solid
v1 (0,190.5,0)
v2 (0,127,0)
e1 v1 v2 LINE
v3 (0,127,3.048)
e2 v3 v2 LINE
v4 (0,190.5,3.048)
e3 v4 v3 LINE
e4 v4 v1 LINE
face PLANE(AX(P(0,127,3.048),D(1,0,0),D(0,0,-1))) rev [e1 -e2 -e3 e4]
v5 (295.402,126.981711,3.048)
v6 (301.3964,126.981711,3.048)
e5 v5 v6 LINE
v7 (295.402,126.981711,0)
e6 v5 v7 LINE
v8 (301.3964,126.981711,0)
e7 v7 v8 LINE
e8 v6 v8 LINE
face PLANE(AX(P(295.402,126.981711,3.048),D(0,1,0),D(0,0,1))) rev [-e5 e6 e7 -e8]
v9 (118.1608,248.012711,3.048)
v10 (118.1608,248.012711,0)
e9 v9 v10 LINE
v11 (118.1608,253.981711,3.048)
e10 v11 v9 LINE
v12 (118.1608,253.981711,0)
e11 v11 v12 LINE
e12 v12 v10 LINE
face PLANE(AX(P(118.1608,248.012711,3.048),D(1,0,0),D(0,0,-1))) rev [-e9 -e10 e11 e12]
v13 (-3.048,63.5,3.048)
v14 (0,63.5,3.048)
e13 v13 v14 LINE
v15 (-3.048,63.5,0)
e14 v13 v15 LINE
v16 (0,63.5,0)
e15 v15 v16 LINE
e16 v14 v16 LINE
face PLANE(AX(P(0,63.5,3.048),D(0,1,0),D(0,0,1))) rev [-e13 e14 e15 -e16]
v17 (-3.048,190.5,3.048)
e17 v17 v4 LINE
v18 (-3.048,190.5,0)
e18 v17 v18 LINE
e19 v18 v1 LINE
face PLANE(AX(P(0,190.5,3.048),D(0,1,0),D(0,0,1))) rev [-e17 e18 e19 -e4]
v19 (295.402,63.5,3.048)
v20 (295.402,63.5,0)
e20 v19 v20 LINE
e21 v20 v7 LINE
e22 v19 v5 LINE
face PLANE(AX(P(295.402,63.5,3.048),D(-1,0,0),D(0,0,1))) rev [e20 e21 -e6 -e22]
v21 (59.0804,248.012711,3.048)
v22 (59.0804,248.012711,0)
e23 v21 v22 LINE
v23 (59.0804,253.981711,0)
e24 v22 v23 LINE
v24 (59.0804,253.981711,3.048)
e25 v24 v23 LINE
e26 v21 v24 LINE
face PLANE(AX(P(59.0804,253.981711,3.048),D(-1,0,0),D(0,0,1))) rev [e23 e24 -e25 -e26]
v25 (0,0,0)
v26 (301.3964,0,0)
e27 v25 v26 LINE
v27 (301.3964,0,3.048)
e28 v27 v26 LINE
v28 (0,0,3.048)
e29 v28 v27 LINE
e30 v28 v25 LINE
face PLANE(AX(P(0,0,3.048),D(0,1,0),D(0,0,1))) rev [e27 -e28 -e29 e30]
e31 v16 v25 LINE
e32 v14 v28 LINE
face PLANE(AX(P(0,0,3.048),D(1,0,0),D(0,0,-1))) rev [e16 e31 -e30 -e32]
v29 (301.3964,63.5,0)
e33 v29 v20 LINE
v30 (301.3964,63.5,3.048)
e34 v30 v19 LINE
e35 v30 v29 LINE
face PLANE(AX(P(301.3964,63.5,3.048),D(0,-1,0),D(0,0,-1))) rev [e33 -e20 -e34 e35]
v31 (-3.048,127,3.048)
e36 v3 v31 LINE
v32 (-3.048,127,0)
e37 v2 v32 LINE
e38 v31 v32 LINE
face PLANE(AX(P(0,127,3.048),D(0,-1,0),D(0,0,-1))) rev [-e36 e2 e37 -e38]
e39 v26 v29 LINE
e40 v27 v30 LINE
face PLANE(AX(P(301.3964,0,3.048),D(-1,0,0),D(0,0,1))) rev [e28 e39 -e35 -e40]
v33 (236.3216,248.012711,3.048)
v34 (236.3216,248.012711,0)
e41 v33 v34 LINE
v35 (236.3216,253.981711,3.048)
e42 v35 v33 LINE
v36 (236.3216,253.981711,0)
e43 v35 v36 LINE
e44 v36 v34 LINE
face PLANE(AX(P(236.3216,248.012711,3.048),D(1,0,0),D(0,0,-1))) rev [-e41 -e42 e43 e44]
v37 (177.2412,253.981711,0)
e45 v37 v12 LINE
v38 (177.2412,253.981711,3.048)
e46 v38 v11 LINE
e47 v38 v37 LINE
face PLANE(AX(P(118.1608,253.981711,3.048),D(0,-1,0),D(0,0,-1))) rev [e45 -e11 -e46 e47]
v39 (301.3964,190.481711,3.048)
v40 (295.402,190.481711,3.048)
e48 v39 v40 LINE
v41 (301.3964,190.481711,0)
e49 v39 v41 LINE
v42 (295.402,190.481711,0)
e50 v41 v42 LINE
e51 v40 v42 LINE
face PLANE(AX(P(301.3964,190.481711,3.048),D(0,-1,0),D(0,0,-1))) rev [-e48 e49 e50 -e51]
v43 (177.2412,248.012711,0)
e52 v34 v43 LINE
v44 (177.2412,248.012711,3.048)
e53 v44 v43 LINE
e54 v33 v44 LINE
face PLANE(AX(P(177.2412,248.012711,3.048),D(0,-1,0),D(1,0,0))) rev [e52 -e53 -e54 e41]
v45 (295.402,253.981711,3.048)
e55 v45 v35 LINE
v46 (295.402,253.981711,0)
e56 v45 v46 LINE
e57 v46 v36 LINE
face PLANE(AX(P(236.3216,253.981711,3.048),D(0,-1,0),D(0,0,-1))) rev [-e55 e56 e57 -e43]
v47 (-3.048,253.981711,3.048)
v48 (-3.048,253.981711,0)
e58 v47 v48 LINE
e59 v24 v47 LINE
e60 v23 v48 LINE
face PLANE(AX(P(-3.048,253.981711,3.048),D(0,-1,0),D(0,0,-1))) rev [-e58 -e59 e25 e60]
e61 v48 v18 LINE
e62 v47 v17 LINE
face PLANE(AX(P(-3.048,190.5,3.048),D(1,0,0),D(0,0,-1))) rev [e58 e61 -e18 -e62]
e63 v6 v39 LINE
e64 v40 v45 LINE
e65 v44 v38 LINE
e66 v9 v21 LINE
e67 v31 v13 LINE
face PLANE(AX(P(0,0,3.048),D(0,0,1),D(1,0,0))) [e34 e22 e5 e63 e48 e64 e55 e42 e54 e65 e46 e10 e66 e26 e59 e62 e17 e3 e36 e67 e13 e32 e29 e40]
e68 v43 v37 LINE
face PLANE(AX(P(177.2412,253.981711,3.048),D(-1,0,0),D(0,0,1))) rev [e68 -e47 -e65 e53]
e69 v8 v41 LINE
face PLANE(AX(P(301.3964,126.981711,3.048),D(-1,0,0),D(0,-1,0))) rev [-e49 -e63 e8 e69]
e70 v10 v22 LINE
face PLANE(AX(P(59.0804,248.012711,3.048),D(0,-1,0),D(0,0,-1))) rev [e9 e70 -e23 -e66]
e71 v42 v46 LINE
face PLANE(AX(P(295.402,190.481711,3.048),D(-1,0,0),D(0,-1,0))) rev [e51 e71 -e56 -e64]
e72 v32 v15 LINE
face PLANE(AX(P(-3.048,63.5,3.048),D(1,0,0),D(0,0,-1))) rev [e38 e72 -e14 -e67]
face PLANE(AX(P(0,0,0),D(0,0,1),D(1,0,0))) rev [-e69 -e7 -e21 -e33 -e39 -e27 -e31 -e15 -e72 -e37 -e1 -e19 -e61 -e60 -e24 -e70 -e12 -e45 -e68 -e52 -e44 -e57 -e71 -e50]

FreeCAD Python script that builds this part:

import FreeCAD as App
import Part
import Sketcher
Q = App.Units.Quantity

doc = App.newDocument("Part")
params = doc.addObject("Spreadsheet::Sheet", "Params")
for row, (alias, value) in enumerate([
    ("sketch1_height", "2.5 in"),
    ("sketch1_width", "0.12 in"),
    ("sketch1_width2", "11.866 in"),
    ("sketch1_width3", "0.236 in"),
    ("sketch1_width4", "2.326 in"),
    ("pad1_length", "0.12 in"),
], start=1):
    params.set(f"A{row}", alias)
    params.set(f"B{row}", "=" + value)
    params.setAlias(f"B{row}", alias)

body = doc.addObject("PartDesign::Body", "Body")

# Sketch on XY plane
sketch1 = body.newObject("Sketcher::SketchObject", "Sketch")
sketch1.AttachmentSupport = (doc.getObject("XY_Plane"), [""])
sketch1.MapMode = "FlatFace"
sketch1.addGeometry(Part.LineSegment(App.Vector(-3, 127, 0), App.Vector(-3, 63.5, 0)), False)
sketch1.addGeometry(Part.LineSegment(App.Vector(-3, 63.5, 0), App.Vector(0, 63.5, 0)), False)
sketch1.addGeometry(Part.LineSegment(App.Vector(0, 63.5, 0), App.Vector(0, 0, 0)), False)
sketch1.addGeometry(Part.LineSegment(App.Vector(0, 0, 0), App.Vector(301.4, 0, 0)), False)
sketch1.addGeometry(Part.LineSegment(App.Vector(301.4, 0, 0), App.Vector(301.4, 63.5, 0)), False)
sketch1.addGeometry(Part.LineSegment(App.Vector(301.4, 63.5, 0), App.Vector(295.4, 63.5, 0)), False)
sketch1.addGeometry(Part.LineSegment(App.Vector(295.4, 63.5, 0), App.Vector(295.4, 127, 0)), False)
sketch1.addGeometry(Part.LineSegment(App.Vector(295.4, 127, 0), App.Vector(301.4, 127, 0)), False)
sketch1.addGeometry(Part.LineSegment(App.Vector(301.4, 127, 0), App.Vector(301.4, 190.5, 0)), False)
sketch1.addGeometry(Part.LineSegment(App.Vector(301.4, 190.5, 0), App.Vector(295.4, 190.5, 0)), False)
sketch1.addGeometry(Part.LineSegment(App.Vector(295.4, 190.5, 0), App.Vector(295.4, 254, 0)), False)
sketch1.addGeometry(Part.LineSegment(App.Vector(295.4, 254, 0), App.Vector(236.3, 254, 0)), False)
sketch1.addGeometry(Part.LineSegment(App.Vector(236.3, 254, 0), App.Vector(236.3, 248, 0)), False)
sketch1.addGeometry(Part.LineSegment(App.Vector(236.3, 248, 0), App.Vector(177.2, 248, 0)), False)
sketch1.addGeometry(Part.LineSegment(App.Vector(177.2, 248, 0), App.Vector(177.2, 254, 0)), False)
sketch1.addGeometry(Part.LineSegment(App.Vector(177.2, 254, 0), App.Vector(118.2, 254, 0)), False)
sketch1.addGeometry(Part.LineSegment(App.Vector(118.2, 254, 0), App.Vector(118.2, 248, 0)), False)
sketch1.addGeometry(Part.LineSegment(App.Vector(118.2, 248, 0), App.Vector(59.1, 248, 0)), False)
sketch1.addGeometry(Part.LineSegment(App.Vector(59.1, 248, 0), App.Vector(59.1, 254, 0)), False)
sketch1.addGeometry(Part.LineSegment(App.Vector(59.1, 254, 0), App.Vector(-3, 254, 0)), False)
sketch1.addGeometry(Part.LineSegment(App.Vector(-3, 254, 0), App.Vector(-3, 190.5, 0)), False)
sketch1.addGeometry(Part.LineSegment(App.Vector(-3, 190.5, 0), App.Vector(0, 190.5, 0)), False)
sketch1.addGeometry(Part.LineSegment(App.Vector(0, 190.5, 0), App.Vector(0, 127, 0)), False)
sketch1.addGeometry(Part.LineSegment(App.Vector(0, 127, 0), App.Vector(-3, 127, 0)), False)
sketch1.addConstraint(Sketcher.Constraint("Coincident", 0, 2, 1, 1))
sketch1.addConstraint(Sketcher.Constraint("Coincident", 1, 2, 2, 1))
sketch1.addConstraint(Sketcher.Constraint("Coincident", 2, 2, 3, 1))
sketch1.addConstraint(Sketcher.Constraint("Coincident", 3, 2, 4, 1))
sketch1.addConstraint(Sketcher.Constraint("Coincident", 4, 2, 5, 1))
sketch1.addConstraint(Sketcher.Constraint("Coincident", 5, 2, 6, 1))
sketch1.addConstraint(Sketcher.Constraint("Coincident", 6, 2, 7, 1))
sketch1.addConstraint(Sketcher.Constraint("Coincident", 7, 2, 8, 1))
sketch1.addConstraint(Sketcher.Constraint("Coincident", 8, 2, 9, 1))
sketch1.addConstraint(Sketcher.Constraint("Coincident", 9, 2, 10, 1))
sketch1.addConstraint(Sketcher.Constraint("Coincident", 10, 2, 11, 1))
sketch1.addConstraint(Sketcher.Constraint("Coincident", 11, 2, 12, 1))
sketch1.addConstraint(Sketcher.Constraint("Coincident", 12, 2, 13, 1))
sketch1.addConstraint(Sketcher.Constraint("Coincident", 13, 2, 14, 1))
sketch1.addConstraint(Sketcher.Constraint("Coincident", 14, 2, 15, 1))
sketch1.addConstraint(Sketcher.Constraint("Coincident", 15, 2, 16, 1))
sketch1.addConstraint(Sketcher.Constraint("Coincident", 16, 2, 17, 1))
sketch1.addConstraint(Sketcher.Constraint("Coincident", 17, 2, 18, 1))
sketch1.addConstraint(Sketcher.Constraint("Coincident", 18, 2, 19, 1))
sketch1.addConstraint(Sketcher.Constraint("Coincident", 19, 2, 20, 1))
sketch1.addConstraint(Sketcher.Constraint("Coincident", 20, 2, 21, 1))
sketch1.addConstraint(Sketcher.Constraint("Coincident", 21, 2, 22, 1))
sketch1.addConstraint(Sketcher.Constraint("Coincident", 22, 2, 23, 1))
sketch1.addConstraint(Sketcher.Constraint("Coincident", 23, 2, 0, 1))
sketch1.addConstraint(Sketcher.Constraint("Vertical", 0))
sketch1.addConstraint(Sketcher.Constraint("Horizontal", 1))
sketch1.addConstraint(Sketcher.Constraint("Vertical", 2))
sketch1.addConstraint(Sketcher.Constraint("Horizontal", 3))
sketch1.addConstraint(Sketcher.Constraint("Vertical", 4))
sketch1.addConstraint(Sketcher.Constraint("Horizontal", 5))
sketch1.addConstraint(Sketcher.Constraint("Vertical", 6))
sketch1.addConstraint(Sketcher.Constraint("Horizontal", 7))
sketch1.addConstraint(Sketcher.Constraint("Vertical", 8))
sketch1.addConstraint(Sketcher.Constraint("Horizontal", 9))
sketch1.addConstraint(Sketcher.Constraint("Vertical", 10))
sketch1.addConstraint(Sketcher.Constraint("Horizontal", 11))
sketch1.addConstraint(Sketcher.Constraint("Vertical", 12))
sketch1.addConstraint(Sketcher.Constraint("Horizontal", 13))
sketch1.addConstraint(Sketcher.Constraint("Vertical", 14))
sketch1.addConstraint(Sketcher.Constraint("Horizontal", 15))
sketch1.addConstraint(Sketcher.Constraint("Vertical", 16))
sketch1.addConstraint(Sketcher.Constraint("Horizontal", 17))
sketch1.addConstraint(Sketcher.Constraint("Vertical", 18))
sketch1.addConstraint(Sketcher.Constraint("Horizontal", 19))
sketch1.addConstraint(Sketcher.Constraint("Vertical", 20))
sketch1.addConstraint(Sketcher.Constraint("Horizontal", 21))
sketch1.addConstraint(Sketcher.Constraint("Vertical", 22))
sketch1.addConstraint(Sketcher.Constraint("Horizontal", 23))
sketch1.addConstraint(Sketcher.Constraint("Coincident", 2, 2, -1, 1))
sketch1.addConstraint(Sketcher.Constraint("PointOnObject", 21, 2, -2))
sketch1.addConstraint(Sketcher.Constraint("Horizontal", 1, 2, 4, 2))
sketch1.addConstraint(Sketcher.Constraint("Horizontal", 11, 2, 14, 2))
sketch1.addConstraint(Sketcher.Constraint("Horizontal", 13, 2, 16, 2))
sketch1.addConstraint(Sketcher.Constraint("Horizontal", 15, 2, 18, 2))
sketch1.addConstraint(Sketcher.Constraint("Vertical", 4, 2, 7, 2))
sketch1.addConstraint(Sketcher.Constraint("Vertical", 6, 2, 9, 2))
sketch1.addConstraint(Sketcher.Constraint("Vertical", 0, 2, 19, 2))
sketch1.addConstraint(Sketcher.Constraint("Equal", 11, 13))
sketch1.addConstraint(Sketcher.Constraint("Equal", 13, 15))
sketch1.addConstraint(Sketcher.Constraint("Equal", 15, 17))
sketch1.addConstraint(Sketcher.Constraint("Equal", 0, 2))
sketch1.addConstraint(Sketcher.Constraint("Equal", 4, 8))
sketch1.addConstraint(Sketcher.Constraint("Equal", 8, 10))
sketch1.addConstraint(Sketcher.Constraint("Equal", 6, 20))
sketch1.addConstraint(Sketcher.Constraint("DistanceY", 0, 2, 0, 1, Q("2.5 in")))
sketch1.addConstraint(Sketcher.Constraint("DistanceX", 1, 1, 1, 2, Q("0.12 in")))
sketch1.addConstraint(Sketcher.Constraint("DistanceX", 3, 1, 3, 2, Q("11.866 in")))
sketch1.addConstraint(Sketcher.Constraint("DistanceX", 5, 2, 5, 1, Q("0.236 in")))
sketch1.addConstraint(Sketcher.Constraint("DistanceX", 11, 2, 11, 1, Q("2.326 in")))
sketch1.addConstraint(Sketcher.Constraint("DistanceY", 12, 2, 12, 1, Q("0.235 in")))
sketch1.addConstraint(Sketcher.Constraint("DistanceY", 6, 1, 6, 2, Q("63.481711 mm")))
sketch1.setExpression("Constraints[64]", "Params.sketch1_height")
sketch1.setExpression("Constraints[65]", "Params.sketch1_width")
sketch1.setExpression("Constraints[66]", "Params.sketch1_width2")
sketch1.setExpression("Constraints[67]", "Params.sketch1_width3")
sketch1.setExpression("Constraints[68]", "Params.sketch1_width4")
pad1 = body.newObject("PartDesign::Pad", "Pad")
pad1.Profile = sketch1
pad1.setExpression("Length", "Params.pad1_length")

doc.recompute()
